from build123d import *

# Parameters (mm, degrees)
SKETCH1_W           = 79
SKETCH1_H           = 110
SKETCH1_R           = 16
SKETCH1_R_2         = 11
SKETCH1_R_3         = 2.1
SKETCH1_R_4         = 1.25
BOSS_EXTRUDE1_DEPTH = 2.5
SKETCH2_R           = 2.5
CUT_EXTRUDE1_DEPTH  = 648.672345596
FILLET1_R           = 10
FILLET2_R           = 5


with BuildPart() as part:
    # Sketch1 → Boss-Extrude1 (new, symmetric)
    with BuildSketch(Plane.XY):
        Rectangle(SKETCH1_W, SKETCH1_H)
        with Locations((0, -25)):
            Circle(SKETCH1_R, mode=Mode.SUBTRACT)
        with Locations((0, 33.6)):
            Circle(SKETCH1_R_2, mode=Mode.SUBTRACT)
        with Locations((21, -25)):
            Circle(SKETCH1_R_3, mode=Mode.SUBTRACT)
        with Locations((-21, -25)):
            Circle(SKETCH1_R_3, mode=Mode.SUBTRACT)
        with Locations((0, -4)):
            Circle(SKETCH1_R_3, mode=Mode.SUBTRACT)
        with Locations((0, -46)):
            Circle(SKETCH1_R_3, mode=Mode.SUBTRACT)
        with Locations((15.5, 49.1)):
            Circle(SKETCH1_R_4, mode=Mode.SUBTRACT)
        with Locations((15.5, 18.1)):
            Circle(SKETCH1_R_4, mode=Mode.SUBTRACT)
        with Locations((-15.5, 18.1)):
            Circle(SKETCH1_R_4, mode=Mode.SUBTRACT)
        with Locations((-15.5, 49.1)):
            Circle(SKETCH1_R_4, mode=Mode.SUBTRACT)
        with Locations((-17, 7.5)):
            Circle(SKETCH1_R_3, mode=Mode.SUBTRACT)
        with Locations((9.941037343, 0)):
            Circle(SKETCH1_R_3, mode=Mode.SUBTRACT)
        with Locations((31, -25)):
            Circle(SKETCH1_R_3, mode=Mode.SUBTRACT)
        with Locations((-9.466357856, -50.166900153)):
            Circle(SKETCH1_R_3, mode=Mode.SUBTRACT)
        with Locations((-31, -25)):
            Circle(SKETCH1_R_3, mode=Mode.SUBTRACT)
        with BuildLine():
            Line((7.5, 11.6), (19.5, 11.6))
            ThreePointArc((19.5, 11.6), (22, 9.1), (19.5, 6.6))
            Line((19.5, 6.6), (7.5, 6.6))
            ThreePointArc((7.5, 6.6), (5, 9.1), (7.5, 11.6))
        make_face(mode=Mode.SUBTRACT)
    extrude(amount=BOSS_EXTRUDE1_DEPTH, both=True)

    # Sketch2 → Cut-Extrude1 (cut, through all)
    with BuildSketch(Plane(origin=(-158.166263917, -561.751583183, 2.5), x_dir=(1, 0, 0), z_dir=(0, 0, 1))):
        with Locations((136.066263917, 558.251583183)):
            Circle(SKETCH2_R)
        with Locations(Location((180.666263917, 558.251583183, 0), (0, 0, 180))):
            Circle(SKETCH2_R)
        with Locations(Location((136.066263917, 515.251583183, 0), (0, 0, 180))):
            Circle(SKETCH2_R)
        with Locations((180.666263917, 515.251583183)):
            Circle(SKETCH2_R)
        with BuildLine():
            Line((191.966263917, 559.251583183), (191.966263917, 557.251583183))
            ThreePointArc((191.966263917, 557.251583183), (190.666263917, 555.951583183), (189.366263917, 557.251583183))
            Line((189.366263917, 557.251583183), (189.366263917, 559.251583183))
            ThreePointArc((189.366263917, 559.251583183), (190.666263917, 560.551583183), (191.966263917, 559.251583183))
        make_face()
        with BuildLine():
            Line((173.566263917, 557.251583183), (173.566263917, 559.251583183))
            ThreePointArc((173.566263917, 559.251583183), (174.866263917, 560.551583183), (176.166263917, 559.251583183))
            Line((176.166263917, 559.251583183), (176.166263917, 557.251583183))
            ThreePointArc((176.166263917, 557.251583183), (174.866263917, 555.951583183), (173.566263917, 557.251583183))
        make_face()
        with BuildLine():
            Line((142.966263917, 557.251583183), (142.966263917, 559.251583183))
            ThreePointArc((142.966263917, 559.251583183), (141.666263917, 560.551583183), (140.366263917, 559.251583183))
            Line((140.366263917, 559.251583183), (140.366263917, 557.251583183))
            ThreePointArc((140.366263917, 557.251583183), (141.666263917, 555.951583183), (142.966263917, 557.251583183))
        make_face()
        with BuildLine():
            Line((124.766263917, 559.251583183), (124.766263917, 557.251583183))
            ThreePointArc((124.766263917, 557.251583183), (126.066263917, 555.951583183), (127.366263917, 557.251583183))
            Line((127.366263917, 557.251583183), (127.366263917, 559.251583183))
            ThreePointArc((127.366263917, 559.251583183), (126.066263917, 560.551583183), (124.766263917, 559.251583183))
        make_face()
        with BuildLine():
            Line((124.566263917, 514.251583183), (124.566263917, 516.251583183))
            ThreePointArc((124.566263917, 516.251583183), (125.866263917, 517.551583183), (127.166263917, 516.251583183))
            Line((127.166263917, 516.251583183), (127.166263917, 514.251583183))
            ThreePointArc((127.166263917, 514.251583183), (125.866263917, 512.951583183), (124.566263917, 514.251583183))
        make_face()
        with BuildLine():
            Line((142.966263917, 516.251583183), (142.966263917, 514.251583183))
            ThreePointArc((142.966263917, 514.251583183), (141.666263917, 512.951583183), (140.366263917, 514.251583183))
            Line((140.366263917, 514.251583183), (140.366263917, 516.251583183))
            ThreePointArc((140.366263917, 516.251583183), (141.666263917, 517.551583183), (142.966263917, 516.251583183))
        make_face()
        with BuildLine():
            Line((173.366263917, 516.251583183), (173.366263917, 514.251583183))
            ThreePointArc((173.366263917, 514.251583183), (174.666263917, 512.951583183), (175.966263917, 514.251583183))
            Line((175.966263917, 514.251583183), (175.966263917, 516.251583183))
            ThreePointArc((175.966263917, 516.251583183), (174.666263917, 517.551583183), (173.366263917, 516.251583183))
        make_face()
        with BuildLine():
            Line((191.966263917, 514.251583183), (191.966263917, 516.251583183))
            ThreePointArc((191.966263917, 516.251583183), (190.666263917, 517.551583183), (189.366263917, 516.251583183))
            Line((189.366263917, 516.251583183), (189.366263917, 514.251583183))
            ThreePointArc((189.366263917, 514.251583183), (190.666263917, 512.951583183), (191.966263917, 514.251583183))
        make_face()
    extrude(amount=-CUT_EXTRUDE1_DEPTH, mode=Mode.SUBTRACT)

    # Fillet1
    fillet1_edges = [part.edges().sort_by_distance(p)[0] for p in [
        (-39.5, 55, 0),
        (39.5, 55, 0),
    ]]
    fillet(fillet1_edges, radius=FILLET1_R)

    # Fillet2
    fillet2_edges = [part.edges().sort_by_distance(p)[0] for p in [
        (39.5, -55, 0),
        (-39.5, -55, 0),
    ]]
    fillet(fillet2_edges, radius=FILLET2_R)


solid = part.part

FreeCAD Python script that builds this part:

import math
import FreeCAD as App
import Part
import Sketcher
from FreeCAD import Vector
Q = App.Units.Quantity


def edges_at(feature, points):
    """Names of the edges that pass closest to the given points."""
    edges = feature.Shape.Edges
    near = lambda p: min(range(len(edges)), key=lambda i: edges[i].distToShape(Part.Vertex(*p))[0])
    return sorted({f"Edge{near(p) + 1}" for p in points})


def add_polygon(sketch, points):
    """Adds a closed chain of lines whose ends are joined by coincident constraints."""
    first, n = sketch.GeometryCount, len(points)
    for a, b in zip(points, points[1:] + points[:1]):
        sketch.addGeometry(Part.LineSegment(App.Vector(*a, 0), App.Vector(*b, 0)), False)
    for i in range(n):
        sketch.addConstraint(Sketcher.Constraint("Coincident", first + i, 2, first + (i + 1) % n, 1))

doc = App.newDocument("Part")
body = doc.addObject("PartDesign::Body", "Body")

sketch1 = body.newObject("Sketcher::SketchObject", "Sketch")
sketch1.AttachmentSupport = (doc.getObject("XY_Plane"), [""])
sketch1.MapMode = "FlatFace"
add_polygon(sketch1, [(-39.5, 55), (-39.5, -55), (39.5, -55), (39.5, 55)])
sketch1.addGeometry(Part.Circle(Vector(-9.5, -50.2, 0), Vector(0, 0, 1), 2.1), False)
sketch1.addGeometry(Part.Circle(Vector(-31, -25, 0), Vector(0, 0, 1), 2.1), False)
sketch1.addGeometry(Part.Circle(Vector(-21, -25, 0), Vector(0, 0, 1), 2.1), False)
sketch1.addGeometry(Part.Circle(Vector(0, -46, 0), Vector(0, 0, 1), 2.1), False)
sketch1.addGeometry(Part.Circle(Vector(0, -25, 0), Vector(0, 0, 1), 16), False)
sketch1.addGeometry(Part.Circle(Vector(0, -4, 0), Vector(0, 0, 1), 2.1), False)
sketch1.addGeometry(Part.Circle(Vector(21, -25, 0), Vector(0, 0, 1), 2.1), False)
sketch1.addGeometry(Part.Circle(Vector(31, -25, 0), Vector(0, 0, 1), 2.1), False)
sketch1.addGeometry(Part.Circle(Vector(-17, 7.5, 0), Vector(0, 0, 1), 2.1), False)
sketch1.addGeometry(Part.Circle(Vector(-15.5, 18.1, 0), Vector(0, 0, 1), 1.2), False)
sketch1.addGeometry(Part.Circle(Vector(-15.5, 49.1, 0), Vector(0, 0, 1), 1.2), False)
sketch1.addGeometry(Part.Circle(Vector(9.9, 0, 0), Vector(0, 0, 1), 2.1), False)
sketch1.addGeometry(Part.ArcOfCircle(Part.Circle(Vector(7.5, 9.1, 0), Vector(0, 0, 1), 2.5), math.radians(90), math.radians(270)), False)
sketch1.addGeometry(Part.LineSegment(Vector(7.5, 11.6, 0), Vector(19.5, 11.6, 0)), False)
sketch1.addGeometry(Part.ArcOfCircle(Part.Circle(Vector(19.5, 9.1, 0), Vector(0, 0, 1), 2.5), math.radians(-90), math.radians(90)), False)
sketch1.addGeometry(Part.LineSegment(Vector(19.5, 6.6, 0), Vector(7.5, 6.6, 0)), False)
sketch1.addGeometry(Part.Circle(Vector(15.5, 18.1, 0), Vector(0, 0, 1), 1.2), False)
sketch1.addGeometry(Part.Circle(Vector(0, 33.6, 0), Vector(0, 0, 1), 11), False)
sketch1.addGeometry(Part.Circle(Vector(15.5, 49.1, 0), Vector(0, 0, 1), 1.2), False)
sketch1.addConstraint(Sketcher.Constraint("Tangent", 16, 1, 17, 1))
sketch1.addConstraint(Sketcher.Constraint("Tangent", 17, 2, 18, 2))
sketch1.addConstraint(Sketcher.Constraint("Tangent", 18, 1, 19, 1))
sketch1.addConstraint(Sketcher.Constraint("Tangent", 19, 2, 16, 2))
sketch1.addConstraint(Sketcher.Constraint("Vertical", 0))
sketch1.addConstraint(Sketcher.Constraint("Horizontal", 1))
sketch1.addConstraint(Sketcher.Constraint("Vertical", 2))
sketch1.addConstraint(Sketcher.Constraint("Horizontal", 3))
sketch1.addConstraint(Sketcher.Constraint("Horizontal", 17))
sketch1.addConstraint(Sketcher.Constraint("Horizontal", 19))
sketch1.addConstraint(Sketcher.Constraint("Equal", 4, 5))
sketch1.addConstraint(Sketcher.Constraint("Equal", 5, 6))
sketch1.addConstraint(Sketcher.Constraint("Equal", 6, 7))
sketch1.addConstraint(Sketcher.Constraint("Equal", 7, 9))
sketch1.addConstraint(Sketcher.Constraint("Equal", 9, 10))
sketch1.addConstraint(Sketcher.Constraint("Equal", 10, 11))
sketch1.addConstraint(Sketcher.Constraint("Equal", 11, 12))
sketch1.addConstraint(Sketcher.Constraint("Equal", 13, 14))
sketch1.addConstraint(Sketcher.Constraint("Equal", 12, 15))
sketch1.addConstraint(Sketcher.Constraint("Equal", 14, 20))
sketch1.addConstraint(Sketcher.Constraint("Equal", 20, 22))
sketch1.addConstraint(Sketcher.Constraint("Symmetric", 0, 2, 2, 2, -1, 1))
sketch1.addConstraint(Sketcher.Constraint("Symmetric", 6, 3, 10, 3, -2))
sketch1.addConstraint(Sketcher.Constraint("Symmetric", 5, 3, 11, 3, -2))
sketch1.addConstraint(Sketcher.Constraint("Symmetric", 13, 3, 20, 3, -2))
sketch1.addConstraint(Sketcher.Constraint("Symmetric", 14, 3, 22, 3, -2))
sketch1.addConstraint(Sketcher.Constraint("PointOnObject", 7, 3, -2))
sketch1.addConstraint(Sketcher.Constraint("PointOnObject", 8, 3, -2))
sketch1.addConstraint(Sketcher.Constraint("PointOnObject", 9, 3, -2))
sketch1.addConstraint(Sketcher.Constraint("PointOnObject", 15, 3, -1))
sketch1.addConstraint(Sketcher.Constraint("PointOnObject", 21, 3, -2))
sketch1.addConstraint(Sketcher.Constraint("Horizontal", 5, 3, 6, 3))
sketch1.addConstraint(Sketcher.Constraint("Horizontal", 6, 3, 8, 3))
sketch1.addConstraint(Sketcher.Constraint("Vertical", 13, 3, 14, 3))
sketch1.addConstraint(Sketcher.Constraint("Diameter", 8, Q("32 mm")))
sketch1.addConstraint(Sketcher.Constraint("Diameter", 21, Q("22 mm")))
sketch1.addConstraint(Sketcher.Constraint("Diameter", 4, Q("4.2 mm")))
sketch1.addConstraint(Sketcher.Constraint("Diameter", 13, Q("2.5 mm")))
sketch1.addConstraint(Sketcher.Constraint("Radius", 16, Q("2.5 mm")))
sketch1.addConstraint(Sketcher.Constraint("DistanceX", 1, 1, 1, 2, Q("79 mm")))
sketch1.addConstraint(Sketcher.Constraint("DistanceX", 17, 1, 17, 2, Q("12 mm")))
sketch1.addConstraint(Sketcher.Constraint("DistanceY", 0, 2, 0, 1, Q("110 mm")))
sketch1.addConstraint(Sketcher.Constraint("DistanceX", 5, 3, -1, 1, Q("31 mm")))
sketch1.addConstraint(Sketcher.Constraint("DistanceY", 5, 3, -1, 1, Q("25 mm")))
sketch1.addConstraint(Sketcher.Constraint("DistanceX", 6, 3, -1, 1, Q("21 mm")))
sketch1.addConstraint(Sketcher.Constraint("DistanceY", 7, 3, -1, 1, Q("46 mm")))
sketch1.addConstraint(Sketcher.Constraint("DistanceY", 9, 3, -1, 1, Q("4 mm")))
sketch1.addConstraint(Sketcher.Constraint("DistanceX", 12, 3, -1, 1, Q("17 mm")))
sketch1.addConstraint(Sketcher.Constraint("DistanceY", 13, 3, 14, 3, Q("31 mm")))
sketch1.addConstraint(Sketcher.Constraint("DistanceX", 13, 3, 16, 3, Q("23 mm")))
sketch1.addConstraint(Sketcher.Constraint("DistanceY", 16, 3, 13, 3, Q("9 mm")))
sketch1.addConstraint(Sketcher.Constraint("DistanceX", 20, 3, 18, 3, Q("4 mm")))
sketch1.addConstraint(Sketcher.Constraint("DistanceY", -1, 1, 12, 3, Q("7.5 mm")))
sketch1.addConstraint(Sketcher.Constraint("DistanceY", -1, 1, 13, 3, Q("18.1 mm")))
sketch1.addConstraint(Sketcher.Constraint("DistanceY", -1, 1, 21, 3, Q("33.6 mm")))
sketch1.addConstraint(Sketcher.Constraint("DistanceY", 4, 3, -1, 1, Q("50.1669 mm")))
sketch1.addConstraint(Sketcher.Constraint("DistanceX", 4, 3, -1, 1, Q("9.466358 mm")))
sketch1.addConstraint(Sketcher.Constraint("DistanceX", -1, 1, 15, 3, Q("9.941037 mm")))
pad1 = body.newObject("PartDesign::Pad", "Pad")
pad1.Profile = sketch1
pad1.Length = 5
pad1.Midplane = True

sketch2 = body.newObject("Sketcher::SketchObject", "Sketch001")
sketch2.AttachmentSupport = (doc.getObject("XY_Plane"), [""])
sketch2.MapMode = "FlatFace"
sketch2.AttachmentOffset = App.Placement(Vector(0, 0, 2.5), App.Rotation())
sketch2.addGeometry(Part.Circle(Vector(-22.1, -3.5, 0), Vector(0, 0, 1), 2.5), False)
sketch2.addGeometry(Part.Circle(Vector(22.5, -3.5, 0), Vector(0, 0, 1), 2.5), False)
sketch2.addGeometry(Part.Circle(Vector(-22.1, -46.5, 0), Vector(0, 0, 1), 2.5), False)
sketch2.addGeometry(Part.Circle(Vector(22.5, -46.5, 0), Vector(0, 0, 1), 2.5), False)
sketch2.addGeometry(Part.LineSegment(Vector(33.8, -4.5, 0), Vector(33.8, -2.5, 0)), False)
sketch2.addGeometry(Part.ArcOfCircle(Part.Circle(Vector(32.5, -2.5, 0), Vector(0, 0, 1), 1.3), math.radians(0), math.radians(180)), False)
sketch2.addGeometry(Part.LineSegment(Vector(31.2, -2.5, 0), Vector(31.2, -4.5, 0)), False)
sketch2.addGeometry(Part.ArcOfCircle(Part.Circle(Vector(32.5, -4.5, 0), Vector(0, 0, 1), 1.3), math.radians(180), math.radians(360)), False)
sketch2.addGeometry(Part.LineSegment(Vector(15.4, -2.5, 0), Vector(15.4, -4.5, 0)), False)
sketch2.addGeometry(Part.ArcOfCircle(Part.Circle(Vector(16.7, -4.5, 0), Vector(0, 0, 1), 1.3), math.radians(180), math.radians(360)), False)
sketch2.addGeometry(Part.LineSegment(Vector(18, -4.5, 0), Vector(18, -2.5, 0)), False)
sketch2.addGeometry(Part.ArcOfCircle(Part.Circle(Vector(16.7, -2.5, 0), Vector(0, 0, 1), 1.3), math.radians(0), math.radians(180)), False)
sketch2.addGeometry(Part.LineSegment(Vector(-15.2, -4.5, 0), Vector(-15.2, -2.5, 0)), False)
sketch2.addGeometry(Part.ArcOfCircle(Part.Circle(Vector(-16.5, -2.5, 0), Vector(0, 0, 1), 1.3), math.radians(0), math.radians(180)), False)
sketch2.addGeometry(Part.LineSegment(Vector(-17.8, -2.5, 0), Vector(-17.8, -4.5, 0)), False)
sketch2.addGeometry(Part.ArcOfCircle(Part.Circle(Vector(-16.5, -4.5, 0), Vector(0, 0, 1), 1.3), math.radians(180), math.radians(360)), False)
sketch2.addGeometry(Part.LineSegment(Vector(-33.4, -2.5, 0), Vector(-33.4, -4.5, 0)), False)
sketch2.addGeometry(Part.ArcOfCircle(Part.Circle(Vector(-32.1, -4.5, 0), Vector(0, 0, 1), 1.3), math.radians(180), math.radians(360)), False)
sketch2.addGeometry(Part.LineSegment(Vector(-30.8, -4.5, 0), Vector(-30.8, -2.5, 0)), False)
sketch2.addGeometry(Part.ArcOfCircle(Part.Circle(Vector(-32.1, -2.5, 0), Vector(0, 0, 1), 1.3), math.radians(0), math.radians(180)), False)
sketch2.addGeometry(Part.LineSegment(Vector(-33.6, -45.5, 0), Vector(-33.6, -47.5, 0)), False)
sketch2.addGeometry(Part.ArcOfCircle(Part.Circle(Vector(-32.3, -47.5, 0), Vector(0, 0, 1), 1.3), math.radians(180), math.radians(360)), False)
sketch2.addGeometry(Part.LineSegment(Vector(-31, -47.5, 0), Vector(-31, -45.5, 0)), False)
sketch2.addGeometry(Part.ArcOfCircle(Part.Circle(Vector(-32.3, -45.5, 0), Vector(0, 0, 1), 1.3), math.radians(0), math.radians(180)), False)
sketch2.addGeometry(Part.LineSegment(Vector(-15.2, -47.5, 0), Vector(-15.2, -45.5, 0)), False)
sketch2.addGeometry(Part.ArcOfCircle(Part.Circle(Vector(-16.5, -45.5, 0), Vector(0, 0, 1), 1.3), math.radians(0), math.radians(180)), False)
sketch2.addGeometry(Part.LineSegment(Vector(-17.8, -45.5, 0), Vector(-17.8, -47.5, 0)), False)
sketch2.addGeometry(Part.ArcOfCircle(Part.Circle(Vector(-16.5, -47.5, 0), Vector(0, 0, 1), 1.3), math.radians(180), math.radians(360)), False)
sketch2.addGeometry(Part.LineSegment(Vector(15.2, -45.5, 0), Vector(15.2, -47.5, 0)), False)
sketch2.addGeometry(Part.ArcOfCircle(Part.Circle(Vector(16.5, -47.5, 0), Vector(0, 0, 1), 1.3), math.radians(180), math.radians(360)), False)
sketch2.addGeometry(Part.LineSegment(Vector(17.8, -47.5, 0), Vector(17.8, -45.5, 0)), False)
sketch2.addGeometry(Part.ArcOfCircle(Part.Circle(Vector(16.5, -45.5, 0), Vector(0, 0, 1), 1.3), math.radians(0), math.radians(180)), False)
sketch2.addGeometry(Part.LineSegment(Vector(33.8, -47.5, 0), Vector(33.8, -45.5, 0)), False)
sketch2.addGeometry(Part.ArcOfCircle(Part.Circle(Vector(32.5, -45.5, 0), Vector(0, 0, 1), 1.3), math.radians(0), math.radians(180)), False)
sketch2.addGeometry(Part.LineSegment(Vector(31.2, -45.5, 0), Vector(31.2, -47.5, 0)), False)
sketch2.addGeometry(Part.ArcOfCircle(Part.Circle(Vector(32.5, -47.5, 0), Vector(0, 0, 1), 1.3), math.radians(180), math.radians(360)), False)
sketch2.addConstraint(Sketcher.Constraint("Tangent", 4, 2, 5, 1))
sketch2.addConstraint(Sketcher.Constraint("Tangent", 5, 2, 6, 1))
sketch2.addConstraint(Sketcher.Constraint("Tangent", 6, 2, 7, 1))
sketch2.addConstraint(Sketcher.Constraint("Tangent", 7, 2, 4, 1))
sketch2.addConstraint(Sketcher.Constraint("Tangent", 8, 2, 9, 1))
sketch2.addConstraint(Sketcher.Constraint("Tangent", 9, 2, 10, 1))
sketch2.addConstraint(Sketcher.Constraint("Tangent", 10, 2, 11, 1))
sketch2.addConstraint(Sketcher.Constraint("Tangent", 11, 2, 8, 1))
sketch2.addConstraint(Sketcher.Constraint("Tangent", 12, 2, 13, 1))
sketch2.addConstraint(Sketcher.Constraint("Tangent", 13, 2, 14, 1))
sketch2.addConstraint(Sketcher.Constraint("Tangent", 14, 2, 15, 1))
sketch2.addConstraint(Sketcher.Constraint("Tangent", 15, 2, 12, 1))
sketch2.addConstraint(Sketcher.Constraint("Tangent", 16, 2, 17, 1))
sketch2.addConstraint(Sketcher.Constraint("Tangent", 17, 2, 18, 1))
sketch2.addConstraint(Sketcher.Constraint("Tangent", 18, 2, 19, 1))
sketch2.addConstraint(Sketcher.Constraint("Tangent", 19, 2, 16, 1))
sketch2.addConstraint(Sketcher.Constraint("Tangent", 20, 2, 21, 1))
sketch2.addConstraint(Sketcher.Constraint("Tangent", 21, 2, 22, 1))
sketch2.addConstraint(Sketcher.Constraint("Tangent", 22, 2, 23, 1))
sketch2.addConstraint(Sketcher.Constraint("Tangent", 23, 2, 20, 1))
sketch2.addConstraint(Sketcher.Constraint("Tangent", 24, 2, 25, 1))
sketch2.addConstraint(Sketcher.Constraint("Tangent", 25, 2, 26, 1))
sketch2.addConstraint(Sketcher.Constraint("Tangent", 26, 2, 27, 1))
sketch2.addConstraint(Sketcher.Constraint("Tangent", 27, 2, 24, 1))
sketch2.addConstraint(Sketcher.Constraint("Tangent", 28, 2, 29, 1))
sketch2.addConstraint(Sketcher.Constraint("Tangent", 29, 2, 30, 1))
sketch2.addConstraint(Sketcher.Constraint("Tangent", 30, 2, 31, 1))
sketch2.addConstraint(Sketcher.Constraint("Tangent", 31, 2, 28, 1))
sketch2.addConstraint(Sketcher.Constraint("Tangent", 32, 2, 33, 1))
sketch2.addConstraint(Sketcher.Constraint("Tangent", 33, 2, 34, 1))
sketch2.addConstraint(Sketcher.Constraint("Tangent", 34, 2, 35, 1))
sketch2.addConstraint(Sketcher.Constraint("Tangent", 35, 2, 32, 1))
sketch2.addConstraint(Sketcher.Constraint("Vertical", 4))
sketch2.addConstraint(Sketcher.Constraint("Vertical", 6))
sketch2.addConstraint(Sketcher.Constraint("Vertical", 8))
sketch2.addConstraint(Sketcher.Constraint("Vertical", 10))
sketch2.addConstraint(Sketcher.Constraint("Vertical", 12))
sketch2.addConstraint(Sketcher.Constraint("Vertical", 14))
sketch2.addConstraint(Sketcher.Constraint("Vertical", 16))
sketch2.addConstraint(Sketcher.Constraint("Vertical", 18))
sketch2.addConstraint(Sketcher.Constraint("Vertical", 20))
sketch2.addConstraint(Sketcher.Constraint("Vertical", 22))
sketch2.addConstraint(Sketcher.Constraint("Vertical", 24))
sketch2.addConstraint(Sketcher.Constraint("Vertical", 26))
sketch2.addConstraint(Sketcher.Constraint("Vertical", 28))
sketch2.addConstraint(Sketcher.Constraint("Vertical", 30))
sketch2.addConstraint(Sketcher.Constraint("Vertical", 32))
sketch2.addConstraint(Sketcher.Constraint("Vertical", 34))
sketch2.addConstraint(Sketcher.Constraint("Equal", 0, 1))
sketch2.addConstraint(Sketcher.Constraint("Equal", 1, 2))
sketch2.addConstraint(Sketcher.Constraint("Equal", 2, 3))
sketch2.addConstraint(Sketcher.Constraint("Equal", 7, 9))
sketch2.addConstraint(Sketcher.Constraint("Equal", 11, 13))
sketch2.addConstraint(Sketcher.Constraint("Equal", 15, 17))
sketch2.addConstraint(Sketcher.Constraint("Equal", 19, 21))
sketch2.addConstraint(Sketcher.Constraint("Equal", 23, 25))
sketch2.addConstraint(Sketcher.Constraint("Equal", 27, 29))
sketch2.addConstraint(Sketcher.Constraint("Equal", 31, 33))
sketch2.addConstraint(Sketcher.Constraint("Symmetric", 27, 3, 29, 3, -2))
sketch2.addConstraint(Sketcher.Constraint("Horizontal", 0, 3, 1, 3))
sketch2.addConstraint(Sketcher.Constraint("Horizontal", 2, 3, 3, 3))
sketch2.addConstraint(Sketcher.Constraint("Horizontal", 7, 3, 9, 3))
sketch2.addConstraint(Sketcher.Constraint("Horizontal", 5, 3, 11, 3))
sketch2.addConstraint(Sketcher.Constraint("Horizontal", 11, 3, 13, 3))
sketch2.addConstraint(Sketcher.Constraint("Horizontal", 9, 3, 15, 3))
sketch2.addConstraint(Sketcher.Constraint("Horizontal", 15, 3, 17, 3))
sketch2.addConstraint(Sketcher.Constraint("Horizontal", 13, 3, 19, 3))
sketch2.addConstraint(Sketcher.Constraint("Horizontal", 23, 3, 25, 3))
sketch2.addConstraint(Sketcher.Constraint("Horizontal", 21, 3, 27, 3))
sketch2.addConstraint(Sketcher.Constraint("Horizontal", 25, 3, 31, 3))
sketch2.addConstraint(Sketcher.Constraint("Horizontal", 31, 3, 33, 3))
sketch2.addConstraint(Sketcher.Constraint("Horizontal", 29, 3, 35, 3))
sketch2.addConstraint(Sketcher.Constraint("Vertical", 0, 3, 2, 3))
sketch2.addConstraint(Sketcher.Constraint("Vertical", 1, 3, 3, 3))
sketch2.addConstraint(Sketcher.Constraint("Vertical", 15, 3, 25, 3))
sketch2.addConstraint(Sketcher.Constraint("Vertical", 7, 3, 33, 3))
sketch2.addConstraint(Sketcher.Constraint("Equal", 18, 20))
sketch2.addConstraint(Sketcher.Constraint("Diameter", 0, Q("5 mm")))
sketch2.addConstraint(Sketcher.Constraint("Radius", 5, Q("1.3 mm")))
sketch2.addConstraint(Sketcher.Constraint("DistanceY", 4, 1, 4, 2, Q("2 mm")))
sketch2.addConstraint(Sketcher.Constraint("DistanceX", -1, 1, 9, 2, Q("18 mm")))
sketch2.addConstraint(Sketcher.Constraint("DistanceX", 21, 2, -1, 1, Q("31 mm")))
sketch2.addConstraint(Sketcher.Constraint("DistanceY", 2, 3, 0, 3, Q("43 mm")))
sketch2.addConstraint(Sketcher.Constraint("DistanceX", 1, 3, 5, 3, Q("10 mm")))
sketch2.addConstraint(Sketcher.Constraint("DistanceY", 1, 3, 5, 3, Q("1 mm")))
sketch2.addConstraint(Sketcher.Constraint("DistanceX", 13, 3, 1, 3, Q("39 mm")))
sketch2.addConstraint(Sketcher.Constraint("DistanceX", 17, 3, 0, 3, Q("10 mm")))
sketch2.addConstraint(Sketcher.Constraint("DistanceY", 21, 3, 2, 3, Q("1 mm")))
sketch2.addConstraint(Sketcher.Constraint("DistanceX", 29, 3, 3, 3, Q("6 mm")))
sketch2.addConstraint(Sketcher.Constraint("DistanceX", 17, 2, 14, 2, Q("13 mm")))
sketch2.addConstraint(Sketcher.Constraint("DistanceY", 0, 3, -1, 1, Q("3.5 mm")))
pocket1 = body.newObject("PartDesign::Pocket", "Pocket")
pocket1.Profile = sketch2
pocket1.Type = "ThroughAll"
doc.recompute()

fillet = body.newObject("PartDesign::Fillet", "Fillet")
fillet.Base = (pocket1, edges_at(pocket1, [(-39.5, 55, 0), (39.5, 55, 0)]))
fillet.Radius = 10
doc.recompute()

fillet2 = body.newObject("PartDesign::Fillet", "Fillet001")
fillet2.Base = (fillet, edges_at(fillet, [(39.5, -55, 0), (-39.5, -55, 0)]))
fillet2.Radius = 5

doc.recompute()
